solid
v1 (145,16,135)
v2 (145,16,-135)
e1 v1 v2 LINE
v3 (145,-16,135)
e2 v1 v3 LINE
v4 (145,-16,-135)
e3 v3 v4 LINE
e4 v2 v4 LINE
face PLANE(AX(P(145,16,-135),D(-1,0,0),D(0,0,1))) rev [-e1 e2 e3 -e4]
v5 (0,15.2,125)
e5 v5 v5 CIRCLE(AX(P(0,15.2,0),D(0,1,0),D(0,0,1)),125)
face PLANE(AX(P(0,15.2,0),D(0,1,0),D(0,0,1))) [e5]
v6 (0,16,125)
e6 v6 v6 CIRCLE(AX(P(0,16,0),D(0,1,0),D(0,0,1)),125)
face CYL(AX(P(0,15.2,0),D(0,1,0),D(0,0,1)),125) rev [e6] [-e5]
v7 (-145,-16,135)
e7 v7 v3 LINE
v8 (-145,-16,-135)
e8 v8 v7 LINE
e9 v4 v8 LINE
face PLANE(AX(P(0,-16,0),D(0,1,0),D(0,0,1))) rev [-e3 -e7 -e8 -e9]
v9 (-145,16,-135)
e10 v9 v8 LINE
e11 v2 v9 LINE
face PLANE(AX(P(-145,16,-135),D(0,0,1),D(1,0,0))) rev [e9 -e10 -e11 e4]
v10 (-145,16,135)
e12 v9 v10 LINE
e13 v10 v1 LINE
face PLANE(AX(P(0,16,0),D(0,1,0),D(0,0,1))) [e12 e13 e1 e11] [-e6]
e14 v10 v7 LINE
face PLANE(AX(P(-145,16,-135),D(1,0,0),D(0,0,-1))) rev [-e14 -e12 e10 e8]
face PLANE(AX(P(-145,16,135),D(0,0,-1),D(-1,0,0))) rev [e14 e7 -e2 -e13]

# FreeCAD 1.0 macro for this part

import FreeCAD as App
import Part
import Sketcher

V = App.Vector

doc = App.newDocument("Part")
body = doc.addObject("PartDesign::Body", "Body")

sketch1 = doc.addObject("Sketcher::SketchObject", "Sketch")
body.addObject(sketch1)
sketch1.AttachmentSupport = (doc.XZ_Plane, [""])
sketch1.MapMode = "FlatFace"
sketch1.addGeometry(Part.LineSegment(V(-145, -135, 0), V(-145, 135, 0)), False)
sketch1.addGeometry(Part.LineSegment(V(-145, 135, 0), V(145, 135, 0)), False)
sketch1.addGeometry(Part.LineSegment(V(145, 135, 0), V(145, -135, 0)), False)
sketch1.addGeometry(Part.LineSegment(V(145, -135, 0), V(-145, -135, 0)), False)
sketch1.addConstraint(Sketcher.Constraint("Coincident", 0, 2, 1, 1))
sketch1.addConstraint(Sketcher.Constraint("Coincident", 1, 2, 2, 1))
sketch1.addConstraint(Sketcher.Constraint("Coincident", 2, 2, 3, 1))
sketch1.addConstraint(Sketcher.Constraint("Coincident", 3, 2, 0, 1))
sketch1.addConstraint(Sketcher.Constraint("Vertical", 0))
sketch1.addConstraint(Sketcher.Constraint("Horizontal", 1))
sketch1.addConstraint(Sketcher.Constraint("Vertical", 2))
sketch1.addConstraint(Sketcher.Constraint("Horizontal", 3))
sketch1.addConstraint(Sketcher.Constraint("Symmetric", 0, 2, 2, 2, -1, 1))
sketch1.addConstraint(Sketcher.Constraint("DistanceX", 1, 1, 1, 2, 290.0))
sketch1.addConstraint(Sketcher.Constraint("DistanceY", 0, 1, 0, 2, 270.0))
pad1 = doc.addObject("PartDesign::Pad", "Pad")
body.addObject(pad1)
pad1.Profile = sketch1
pad1.Length = 32
pad1.Midplane = True

sketch2 = doc.addObject("Sketcher::SketchObject", "Sketch001")
body.addObject(sketch2)
sketch2.AttachmentSupport = (doc.XZ_Plane, [""])
sketch2.MapMode = "FlatFace"
sketch2.AttachmentOffset = App.Placement(V(0, 0, -16), App.Rotation())
sketch2.addGeometry(Part.Circle(V(0, 0, 0), V(0, 0, 1), 125), False)
sketch2.addConstraint(Sketcher.Constraint("Coincident", 0, 3, -1, 1))
sketch2.addConstraint(Sketcher.Constraint("Diameter", 0, 250.0))
pocket1 = doc.addObject("PartDesign::Pocket", "Pocket")
body.addObject(pocket1)
pocket1.Profile = sketch2
pocket1.Length = 0.8
pocket1.Reversed = True

doc.recompute()
